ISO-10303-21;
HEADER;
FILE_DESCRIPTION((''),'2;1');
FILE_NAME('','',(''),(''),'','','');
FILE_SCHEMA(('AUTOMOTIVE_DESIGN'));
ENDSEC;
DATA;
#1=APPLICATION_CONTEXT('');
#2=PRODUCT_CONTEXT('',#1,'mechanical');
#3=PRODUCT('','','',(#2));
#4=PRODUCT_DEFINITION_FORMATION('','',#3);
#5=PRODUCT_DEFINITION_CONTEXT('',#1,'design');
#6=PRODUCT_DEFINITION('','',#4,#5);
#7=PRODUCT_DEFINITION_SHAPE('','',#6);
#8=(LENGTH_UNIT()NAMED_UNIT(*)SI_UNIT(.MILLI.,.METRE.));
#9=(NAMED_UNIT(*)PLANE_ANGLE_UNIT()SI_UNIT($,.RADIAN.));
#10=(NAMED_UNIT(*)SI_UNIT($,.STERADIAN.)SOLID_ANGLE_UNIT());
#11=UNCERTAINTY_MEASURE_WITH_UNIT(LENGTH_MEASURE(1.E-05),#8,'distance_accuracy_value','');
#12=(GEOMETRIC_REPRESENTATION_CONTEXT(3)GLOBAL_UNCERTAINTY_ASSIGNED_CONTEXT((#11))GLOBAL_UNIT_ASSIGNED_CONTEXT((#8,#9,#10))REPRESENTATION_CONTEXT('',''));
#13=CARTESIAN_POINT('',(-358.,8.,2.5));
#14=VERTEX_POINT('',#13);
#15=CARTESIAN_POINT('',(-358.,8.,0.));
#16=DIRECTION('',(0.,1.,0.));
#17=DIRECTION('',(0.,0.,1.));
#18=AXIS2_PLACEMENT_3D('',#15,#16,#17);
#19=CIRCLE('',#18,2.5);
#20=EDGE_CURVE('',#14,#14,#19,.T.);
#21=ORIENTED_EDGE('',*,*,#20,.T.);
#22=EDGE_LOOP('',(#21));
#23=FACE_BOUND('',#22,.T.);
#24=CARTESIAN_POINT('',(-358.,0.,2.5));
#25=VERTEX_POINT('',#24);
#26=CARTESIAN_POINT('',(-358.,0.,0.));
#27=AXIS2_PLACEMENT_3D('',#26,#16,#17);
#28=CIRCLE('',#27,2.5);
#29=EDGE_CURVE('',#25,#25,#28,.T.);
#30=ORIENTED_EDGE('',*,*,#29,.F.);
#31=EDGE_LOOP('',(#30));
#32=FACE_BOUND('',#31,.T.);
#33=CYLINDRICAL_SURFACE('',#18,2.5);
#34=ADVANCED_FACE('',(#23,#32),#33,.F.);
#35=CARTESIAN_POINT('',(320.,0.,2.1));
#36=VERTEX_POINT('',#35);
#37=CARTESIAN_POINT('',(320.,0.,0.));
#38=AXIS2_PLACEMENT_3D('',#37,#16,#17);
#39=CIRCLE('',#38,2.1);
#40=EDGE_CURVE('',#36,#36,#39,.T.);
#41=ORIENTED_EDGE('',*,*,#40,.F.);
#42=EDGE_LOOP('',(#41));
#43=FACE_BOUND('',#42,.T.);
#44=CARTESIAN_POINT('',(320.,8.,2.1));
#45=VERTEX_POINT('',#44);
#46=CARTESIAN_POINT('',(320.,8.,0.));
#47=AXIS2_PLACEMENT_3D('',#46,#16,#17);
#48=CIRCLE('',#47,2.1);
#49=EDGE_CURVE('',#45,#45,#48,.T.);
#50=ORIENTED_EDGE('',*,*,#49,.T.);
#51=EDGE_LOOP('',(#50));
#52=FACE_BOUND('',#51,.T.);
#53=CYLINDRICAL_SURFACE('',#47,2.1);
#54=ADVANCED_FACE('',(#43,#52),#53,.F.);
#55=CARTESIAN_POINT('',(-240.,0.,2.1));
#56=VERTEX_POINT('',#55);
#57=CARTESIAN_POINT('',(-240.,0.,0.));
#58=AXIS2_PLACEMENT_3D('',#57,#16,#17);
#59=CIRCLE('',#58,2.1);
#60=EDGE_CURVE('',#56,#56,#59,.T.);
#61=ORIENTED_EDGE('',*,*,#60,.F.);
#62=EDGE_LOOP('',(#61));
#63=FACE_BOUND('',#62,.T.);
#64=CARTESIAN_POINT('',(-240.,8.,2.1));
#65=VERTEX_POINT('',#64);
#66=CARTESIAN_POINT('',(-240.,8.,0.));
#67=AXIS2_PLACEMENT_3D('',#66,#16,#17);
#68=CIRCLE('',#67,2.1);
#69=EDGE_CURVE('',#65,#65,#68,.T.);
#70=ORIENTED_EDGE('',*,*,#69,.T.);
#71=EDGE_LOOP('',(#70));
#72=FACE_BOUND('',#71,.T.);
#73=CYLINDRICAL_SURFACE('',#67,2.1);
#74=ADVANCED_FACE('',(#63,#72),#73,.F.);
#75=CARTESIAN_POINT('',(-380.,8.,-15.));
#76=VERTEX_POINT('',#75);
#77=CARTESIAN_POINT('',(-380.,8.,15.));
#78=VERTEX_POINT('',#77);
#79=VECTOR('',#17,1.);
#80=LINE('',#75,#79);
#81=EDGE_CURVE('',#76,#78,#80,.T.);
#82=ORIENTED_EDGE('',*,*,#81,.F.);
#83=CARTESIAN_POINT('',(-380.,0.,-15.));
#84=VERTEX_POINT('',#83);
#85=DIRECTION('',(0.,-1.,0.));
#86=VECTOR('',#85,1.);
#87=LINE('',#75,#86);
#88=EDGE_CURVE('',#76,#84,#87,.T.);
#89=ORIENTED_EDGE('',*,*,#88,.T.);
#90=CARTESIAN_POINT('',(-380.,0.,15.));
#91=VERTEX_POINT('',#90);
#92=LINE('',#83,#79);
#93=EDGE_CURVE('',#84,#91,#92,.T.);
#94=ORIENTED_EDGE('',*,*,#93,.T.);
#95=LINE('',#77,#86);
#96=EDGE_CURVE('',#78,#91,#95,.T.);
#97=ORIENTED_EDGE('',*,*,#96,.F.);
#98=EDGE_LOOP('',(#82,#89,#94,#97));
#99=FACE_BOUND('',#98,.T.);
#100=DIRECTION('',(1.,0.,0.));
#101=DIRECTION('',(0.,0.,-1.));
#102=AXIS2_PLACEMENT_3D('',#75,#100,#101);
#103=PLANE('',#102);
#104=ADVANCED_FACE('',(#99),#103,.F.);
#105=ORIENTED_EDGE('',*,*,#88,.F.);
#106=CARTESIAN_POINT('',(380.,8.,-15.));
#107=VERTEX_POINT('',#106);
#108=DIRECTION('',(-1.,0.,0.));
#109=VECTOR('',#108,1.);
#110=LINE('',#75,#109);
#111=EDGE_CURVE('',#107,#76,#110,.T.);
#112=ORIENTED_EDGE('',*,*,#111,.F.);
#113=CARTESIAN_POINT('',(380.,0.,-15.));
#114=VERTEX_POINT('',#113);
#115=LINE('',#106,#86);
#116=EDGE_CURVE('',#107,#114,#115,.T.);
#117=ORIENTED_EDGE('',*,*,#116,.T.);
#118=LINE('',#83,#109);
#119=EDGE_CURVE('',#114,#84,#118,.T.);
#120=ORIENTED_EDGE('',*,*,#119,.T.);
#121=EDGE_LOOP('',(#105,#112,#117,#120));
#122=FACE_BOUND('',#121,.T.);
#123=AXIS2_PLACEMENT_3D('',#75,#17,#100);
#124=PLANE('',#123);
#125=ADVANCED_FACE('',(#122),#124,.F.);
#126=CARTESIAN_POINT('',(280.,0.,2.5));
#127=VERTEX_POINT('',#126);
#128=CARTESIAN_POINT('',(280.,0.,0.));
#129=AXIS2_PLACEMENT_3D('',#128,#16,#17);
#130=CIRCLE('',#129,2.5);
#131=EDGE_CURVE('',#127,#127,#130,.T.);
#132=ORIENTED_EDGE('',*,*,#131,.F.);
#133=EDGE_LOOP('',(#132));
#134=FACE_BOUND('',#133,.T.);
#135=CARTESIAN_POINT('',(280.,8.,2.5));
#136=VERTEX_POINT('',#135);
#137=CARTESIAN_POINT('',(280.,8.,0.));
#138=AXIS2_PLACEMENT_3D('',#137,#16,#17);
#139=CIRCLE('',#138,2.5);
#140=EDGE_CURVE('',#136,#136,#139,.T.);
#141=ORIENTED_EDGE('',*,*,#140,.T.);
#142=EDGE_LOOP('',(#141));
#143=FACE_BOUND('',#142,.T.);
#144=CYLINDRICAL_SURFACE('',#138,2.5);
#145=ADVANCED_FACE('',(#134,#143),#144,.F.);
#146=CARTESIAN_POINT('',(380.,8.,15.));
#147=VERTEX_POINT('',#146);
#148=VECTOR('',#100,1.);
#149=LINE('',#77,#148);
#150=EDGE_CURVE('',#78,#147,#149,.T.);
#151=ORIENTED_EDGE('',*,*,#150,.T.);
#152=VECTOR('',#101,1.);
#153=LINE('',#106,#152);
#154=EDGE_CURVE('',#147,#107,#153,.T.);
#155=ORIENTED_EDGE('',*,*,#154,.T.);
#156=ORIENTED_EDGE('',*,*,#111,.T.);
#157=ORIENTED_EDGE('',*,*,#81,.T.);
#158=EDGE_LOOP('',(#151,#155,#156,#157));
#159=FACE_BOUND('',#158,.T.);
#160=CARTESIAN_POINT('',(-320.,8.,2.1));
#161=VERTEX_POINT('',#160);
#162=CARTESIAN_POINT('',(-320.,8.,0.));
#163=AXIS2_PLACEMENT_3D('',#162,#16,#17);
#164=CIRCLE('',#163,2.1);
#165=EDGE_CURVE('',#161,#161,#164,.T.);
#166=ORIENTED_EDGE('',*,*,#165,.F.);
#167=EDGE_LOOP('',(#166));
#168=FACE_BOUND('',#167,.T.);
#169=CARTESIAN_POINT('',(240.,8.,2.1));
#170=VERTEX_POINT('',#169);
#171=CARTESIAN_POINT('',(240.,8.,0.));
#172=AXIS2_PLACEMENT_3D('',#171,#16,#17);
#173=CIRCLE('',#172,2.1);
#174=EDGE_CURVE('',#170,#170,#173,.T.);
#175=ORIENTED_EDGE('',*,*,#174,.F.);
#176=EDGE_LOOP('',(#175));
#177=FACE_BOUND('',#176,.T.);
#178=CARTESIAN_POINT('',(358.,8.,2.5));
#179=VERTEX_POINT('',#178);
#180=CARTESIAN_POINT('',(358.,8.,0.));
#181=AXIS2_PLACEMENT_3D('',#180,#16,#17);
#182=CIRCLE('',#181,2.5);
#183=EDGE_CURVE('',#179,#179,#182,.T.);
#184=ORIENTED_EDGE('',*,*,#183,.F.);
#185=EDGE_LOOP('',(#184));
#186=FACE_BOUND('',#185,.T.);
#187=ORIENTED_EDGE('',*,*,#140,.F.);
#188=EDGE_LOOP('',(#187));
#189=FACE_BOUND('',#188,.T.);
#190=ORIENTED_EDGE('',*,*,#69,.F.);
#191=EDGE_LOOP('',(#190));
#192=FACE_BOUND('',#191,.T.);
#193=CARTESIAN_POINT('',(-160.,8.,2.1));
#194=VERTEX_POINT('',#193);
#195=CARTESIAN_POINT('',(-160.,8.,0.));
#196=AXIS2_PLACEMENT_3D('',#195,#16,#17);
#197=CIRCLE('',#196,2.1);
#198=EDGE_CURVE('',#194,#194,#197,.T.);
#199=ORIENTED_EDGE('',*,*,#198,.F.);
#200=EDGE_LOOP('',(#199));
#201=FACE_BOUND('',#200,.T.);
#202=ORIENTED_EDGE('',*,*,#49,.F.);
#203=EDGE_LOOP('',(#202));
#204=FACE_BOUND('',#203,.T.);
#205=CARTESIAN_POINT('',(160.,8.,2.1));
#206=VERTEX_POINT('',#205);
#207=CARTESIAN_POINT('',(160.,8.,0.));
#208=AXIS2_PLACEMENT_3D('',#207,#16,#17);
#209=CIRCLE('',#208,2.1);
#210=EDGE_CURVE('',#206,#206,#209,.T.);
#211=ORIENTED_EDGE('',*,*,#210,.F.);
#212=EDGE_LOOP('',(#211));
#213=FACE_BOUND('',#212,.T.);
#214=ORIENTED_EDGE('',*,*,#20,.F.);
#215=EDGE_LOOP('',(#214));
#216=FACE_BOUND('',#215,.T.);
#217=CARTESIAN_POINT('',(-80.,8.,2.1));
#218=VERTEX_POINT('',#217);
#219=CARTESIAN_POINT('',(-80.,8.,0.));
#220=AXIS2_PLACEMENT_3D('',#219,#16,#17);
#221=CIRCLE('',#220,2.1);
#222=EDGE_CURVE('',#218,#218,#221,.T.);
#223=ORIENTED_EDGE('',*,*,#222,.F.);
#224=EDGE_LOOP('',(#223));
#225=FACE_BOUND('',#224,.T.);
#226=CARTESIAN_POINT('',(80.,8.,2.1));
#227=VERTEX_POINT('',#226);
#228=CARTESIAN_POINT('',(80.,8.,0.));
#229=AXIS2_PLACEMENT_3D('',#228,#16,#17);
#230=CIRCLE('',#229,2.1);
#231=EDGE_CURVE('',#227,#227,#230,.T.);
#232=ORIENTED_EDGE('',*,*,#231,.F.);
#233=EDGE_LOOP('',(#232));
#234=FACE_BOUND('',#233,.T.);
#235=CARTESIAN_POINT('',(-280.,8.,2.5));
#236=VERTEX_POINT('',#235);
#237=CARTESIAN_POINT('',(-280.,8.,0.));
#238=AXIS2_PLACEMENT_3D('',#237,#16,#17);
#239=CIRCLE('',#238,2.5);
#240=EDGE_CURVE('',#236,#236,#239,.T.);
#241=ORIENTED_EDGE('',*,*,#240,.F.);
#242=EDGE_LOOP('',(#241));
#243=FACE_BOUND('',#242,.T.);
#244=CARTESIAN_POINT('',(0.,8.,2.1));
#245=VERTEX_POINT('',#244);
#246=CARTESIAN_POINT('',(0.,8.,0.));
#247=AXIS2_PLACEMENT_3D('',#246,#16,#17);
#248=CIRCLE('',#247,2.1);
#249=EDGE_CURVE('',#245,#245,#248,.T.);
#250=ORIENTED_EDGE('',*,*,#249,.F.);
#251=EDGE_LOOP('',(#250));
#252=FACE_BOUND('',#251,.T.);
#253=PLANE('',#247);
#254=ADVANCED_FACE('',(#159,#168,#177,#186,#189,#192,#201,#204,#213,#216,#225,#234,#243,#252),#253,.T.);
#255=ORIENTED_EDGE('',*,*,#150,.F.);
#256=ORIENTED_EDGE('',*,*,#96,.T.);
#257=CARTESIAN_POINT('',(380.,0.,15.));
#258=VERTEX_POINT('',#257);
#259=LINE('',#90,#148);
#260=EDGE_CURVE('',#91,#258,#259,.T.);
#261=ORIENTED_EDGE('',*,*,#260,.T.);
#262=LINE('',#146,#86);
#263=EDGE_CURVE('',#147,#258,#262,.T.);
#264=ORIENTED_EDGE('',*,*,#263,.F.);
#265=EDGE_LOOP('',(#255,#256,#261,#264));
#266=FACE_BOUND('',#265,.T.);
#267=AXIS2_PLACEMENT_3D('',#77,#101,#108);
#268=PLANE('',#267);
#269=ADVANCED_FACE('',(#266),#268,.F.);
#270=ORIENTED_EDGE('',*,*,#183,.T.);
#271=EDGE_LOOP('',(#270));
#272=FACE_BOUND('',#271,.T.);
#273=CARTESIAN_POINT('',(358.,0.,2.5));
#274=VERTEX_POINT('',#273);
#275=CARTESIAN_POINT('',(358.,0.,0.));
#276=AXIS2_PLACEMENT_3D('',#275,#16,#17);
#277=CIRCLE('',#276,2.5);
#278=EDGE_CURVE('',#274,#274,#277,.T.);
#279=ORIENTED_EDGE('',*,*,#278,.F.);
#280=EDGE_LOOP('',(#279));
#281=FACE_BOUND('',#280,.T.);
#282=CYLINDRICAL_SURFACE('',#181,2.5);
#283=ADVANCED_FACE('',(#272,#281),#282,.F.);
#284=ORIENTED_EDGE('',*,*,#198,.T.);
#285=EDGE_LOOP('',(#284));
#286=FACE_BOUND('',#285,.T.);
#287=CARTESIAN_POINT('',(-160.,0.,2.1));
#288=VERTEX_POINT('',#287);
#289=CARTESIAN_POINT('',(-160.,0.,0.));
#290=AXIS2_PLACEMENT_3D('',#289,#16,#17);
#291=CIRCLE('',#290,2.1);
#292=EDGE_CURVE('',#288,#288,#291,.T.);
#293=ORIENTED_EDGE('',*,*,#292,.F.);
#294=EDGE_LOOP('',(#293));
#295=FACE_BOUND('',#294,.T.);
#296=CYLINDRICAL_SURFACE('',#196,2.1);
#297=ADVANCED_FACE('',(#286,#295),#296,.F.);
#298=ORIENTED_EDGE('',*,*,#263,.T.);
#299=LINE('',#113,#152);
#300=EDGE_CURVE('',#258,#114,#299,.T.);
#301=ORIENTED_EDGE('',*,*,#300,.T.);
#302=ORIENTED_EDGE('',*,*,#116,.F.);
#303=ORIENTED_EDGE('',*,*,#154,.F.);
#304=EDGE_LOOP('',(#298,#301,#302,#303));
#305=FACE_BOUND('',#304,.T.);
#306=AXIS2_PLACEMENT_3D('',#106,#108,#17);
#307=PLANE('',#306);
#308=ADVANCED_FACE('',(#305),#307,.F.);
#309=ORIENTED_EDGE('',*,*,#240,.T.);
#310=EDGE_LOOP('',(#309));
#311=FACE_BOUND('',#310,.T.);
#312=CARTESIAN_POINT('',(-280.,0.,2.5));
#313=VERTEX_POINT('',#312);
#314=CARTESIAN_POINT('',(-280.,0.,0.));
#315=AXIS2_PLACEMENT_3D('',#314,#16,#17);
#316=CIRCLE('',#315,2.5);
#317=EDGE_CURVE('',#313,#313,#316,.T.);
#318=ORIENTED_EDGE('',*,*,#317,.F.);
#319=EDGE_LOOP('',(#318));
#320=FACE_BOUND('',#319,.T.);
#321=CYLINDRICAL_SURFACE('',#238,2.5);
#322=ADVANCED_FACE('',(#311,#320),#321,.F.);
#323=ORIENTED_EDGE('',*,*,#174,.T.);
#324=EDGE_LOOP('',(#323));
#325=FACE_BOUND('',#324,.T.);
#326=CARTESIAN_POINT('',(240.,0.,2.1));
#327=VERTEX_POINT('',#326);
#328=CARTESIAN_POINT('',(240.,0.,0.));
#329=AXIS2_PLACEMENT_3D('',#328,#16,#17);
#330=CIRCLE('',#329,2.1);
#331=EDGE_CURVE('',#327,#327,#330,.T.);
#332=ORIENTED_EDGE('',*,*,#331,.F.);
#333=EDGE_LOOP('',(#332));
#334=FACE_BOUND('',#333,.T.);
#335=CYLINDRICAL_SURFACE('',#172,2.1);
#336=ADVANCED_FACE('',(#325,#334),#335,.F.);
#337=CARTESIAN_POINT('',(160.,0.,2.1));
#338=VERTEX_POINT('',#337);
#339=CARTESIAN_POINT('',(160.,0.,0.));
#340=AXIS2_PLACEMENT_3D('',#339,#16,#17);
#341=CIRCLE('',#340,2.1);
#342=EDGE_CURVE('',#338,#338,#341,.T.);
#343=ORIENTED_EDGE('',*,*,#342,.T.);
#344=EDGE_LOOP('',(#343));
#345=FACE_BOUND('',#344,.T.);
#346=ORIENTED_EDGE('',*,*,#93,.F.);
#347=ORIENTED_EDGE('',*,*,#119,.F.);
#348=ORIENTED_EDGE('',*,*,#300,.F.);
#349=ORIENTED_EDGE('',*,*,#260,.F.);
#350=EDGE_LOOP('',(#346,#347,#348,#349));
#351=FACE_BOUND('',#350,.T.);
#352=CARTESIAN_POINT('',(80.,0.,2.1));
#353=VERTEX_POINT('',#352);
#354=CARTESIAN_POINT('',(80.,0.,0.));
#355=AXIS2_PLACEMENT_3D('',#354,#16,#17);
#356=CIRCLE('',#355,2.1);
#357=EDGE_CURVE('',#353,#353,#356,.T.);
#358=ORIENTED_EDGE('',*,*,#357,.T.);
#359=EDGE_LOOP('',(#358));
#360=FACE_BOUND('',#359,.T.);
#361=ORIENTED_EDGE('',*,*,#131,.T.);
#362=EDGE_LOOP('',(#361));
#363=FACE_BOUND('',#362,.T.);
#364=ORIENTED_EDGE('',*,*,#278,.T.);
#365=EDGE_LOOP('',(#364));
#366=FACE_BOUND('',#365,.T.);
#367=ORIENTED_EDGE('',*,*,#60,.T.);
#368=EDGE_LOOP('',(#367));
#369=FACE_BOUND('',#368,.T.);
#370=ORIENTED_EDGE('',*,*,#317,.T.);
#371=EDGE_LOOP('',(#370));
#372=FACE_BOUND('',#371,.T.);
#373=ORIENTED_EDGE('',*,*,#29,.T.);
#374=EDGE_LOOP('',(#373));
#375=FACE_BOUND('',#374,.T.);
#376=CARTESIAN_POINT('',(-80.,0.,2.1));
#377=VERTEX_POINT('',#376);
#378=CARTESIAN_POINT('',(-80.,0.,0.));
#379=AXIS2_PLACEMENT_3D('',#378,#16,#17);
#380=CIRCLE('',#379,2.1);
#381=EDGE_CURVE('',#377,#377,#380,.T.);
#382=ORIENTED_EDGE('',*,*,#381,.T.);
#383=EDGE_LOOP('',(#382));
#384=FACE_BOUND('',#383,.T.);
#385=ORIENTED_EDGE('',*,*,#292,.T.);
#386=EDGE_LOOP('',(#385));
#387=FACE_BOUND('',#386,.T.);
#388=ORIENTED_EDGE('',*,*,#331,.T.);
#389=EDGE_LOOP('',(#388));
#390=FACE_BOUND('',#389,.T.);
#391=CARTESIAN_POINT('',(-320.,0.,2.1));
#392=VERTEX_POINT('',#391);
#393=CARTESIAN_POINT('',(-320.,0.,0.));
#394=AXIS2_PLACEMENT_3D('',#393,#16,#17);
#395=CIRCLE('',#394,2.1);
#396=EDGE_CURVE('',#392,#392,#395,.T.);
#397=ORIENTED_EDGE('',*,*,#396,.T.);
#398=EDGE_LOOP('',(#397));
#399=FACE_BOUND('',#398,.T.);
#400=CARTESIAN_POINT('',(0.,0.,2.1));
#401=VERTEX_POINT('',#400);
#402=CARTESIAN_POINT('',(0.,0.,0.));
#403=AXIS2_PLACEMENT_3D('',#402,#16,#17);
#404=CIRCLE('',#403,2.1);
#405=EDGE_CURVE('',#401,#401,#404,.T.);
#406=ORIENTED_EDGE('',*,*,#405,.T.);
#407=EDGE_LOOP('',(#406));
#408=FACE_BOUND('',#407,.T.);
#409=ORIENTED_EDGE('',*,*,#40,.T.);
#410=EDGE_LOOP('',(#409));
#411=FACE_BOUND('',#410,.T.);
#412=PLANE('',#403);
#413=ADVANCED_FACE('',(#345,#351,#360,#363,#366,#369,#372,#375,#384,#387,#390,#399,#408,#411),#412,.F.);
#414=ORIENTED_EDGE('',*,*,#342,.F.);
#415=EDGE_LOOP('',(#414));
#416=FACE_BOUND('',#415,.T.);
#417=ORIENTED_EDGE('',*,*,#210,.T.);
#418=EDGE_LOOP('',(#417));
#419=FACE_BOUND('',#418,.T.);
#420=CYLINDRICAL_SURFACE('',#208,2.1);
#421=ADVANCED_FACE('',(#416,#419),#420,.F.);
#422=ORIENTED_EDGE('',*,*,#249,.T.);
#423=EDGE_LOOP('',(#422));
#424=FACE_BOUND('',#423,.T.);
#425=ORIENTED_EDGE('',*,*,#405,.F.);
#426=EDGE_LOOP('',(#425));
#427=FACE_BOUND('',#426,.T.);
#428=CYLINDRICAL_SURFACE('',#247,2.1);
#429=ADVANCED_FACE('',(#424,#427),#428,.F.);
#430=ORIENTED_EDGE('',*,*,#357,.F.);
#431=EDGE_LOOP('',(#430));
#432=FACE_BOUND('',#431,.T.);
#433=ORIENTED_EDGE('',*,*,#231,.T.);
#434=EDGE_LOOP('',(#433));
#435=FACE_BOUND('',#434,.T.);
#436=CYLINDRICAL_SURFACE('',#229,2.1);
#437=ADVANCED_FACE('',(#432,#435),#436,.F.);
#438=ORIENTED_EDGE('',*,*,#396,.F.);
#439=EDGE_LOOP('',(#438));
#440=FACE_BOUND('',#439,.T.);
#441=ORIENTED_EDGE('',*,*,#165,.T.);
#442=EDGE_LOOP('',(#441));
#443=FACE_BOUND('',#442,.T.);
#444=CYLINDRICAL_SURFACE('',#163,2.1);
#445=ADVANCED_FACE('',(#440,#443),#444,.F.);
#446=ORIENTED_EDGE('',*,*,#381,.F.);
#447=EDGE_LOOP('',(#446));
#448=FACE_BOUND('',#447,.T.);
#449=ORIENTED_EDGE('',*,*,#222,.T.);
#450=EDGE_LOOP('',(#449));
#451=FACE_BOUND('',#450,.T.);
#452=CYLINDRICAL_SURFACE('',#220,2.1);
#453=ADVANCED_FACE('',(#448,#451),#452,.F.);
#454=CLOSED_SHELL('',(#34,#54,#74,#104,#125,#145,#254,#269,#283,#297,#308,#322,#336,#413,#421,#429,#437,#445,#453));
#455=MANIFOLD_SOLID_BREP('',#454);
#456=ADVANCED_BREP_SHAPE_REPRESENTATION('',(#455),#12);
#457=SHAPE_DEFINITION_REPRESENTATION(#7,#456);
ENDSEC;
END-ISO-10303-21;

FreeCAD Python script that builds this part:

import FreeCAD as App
import Part
import Sketcher

doc = App.newDocument("Part")
body = doc.addObject("PartDesign::Body", "Body")

sketch1 = body.newObject("Sketcher::SketchObject", "Sketch")
sketch1.AttachmentSupport = (doc.getObject("XZ_Plane"), [""])
sketch1.MapMode = "FlatFace"
sketch1.addGeometry([
    Part.LineSegment(App.Vector(-380, -15, 0), App.Vector(-380, 15, 0)),
    Part.LineSegment(App.Vector(-380, 15, 0), App.Vector(380, 15, 0)),
    Part.LineSegment(App.Vector(380, 15, 0), App.Vector(380, -15, 0)),
    Part.LineSegment(App.Vector(380, -15, 0), App.Vector(-380, -15, 0)),
], False)
sketch1.addConstraint([
    Sketcher.Constraint("Coincident", 0, 2, 1, 1),
    Sketcher.Constraint("Coincident", 1, 2, 2, 1),
    Sketcher.Constraint("Coincident", 2, 2, 3, 1),
    Sketcher.Constraint("Coincident", 3, 2, 0, 1),
    Sketcher.Constraint("Vertical", 0),
    Sketcher.Constraint("Horizontal", 1),
    Sketcher.Constraint("Vertical", 2),
    Sketcher.Constraint("Horizontal", 3),
    Sketcher.Constraint("Symmetric", 0, 2, 2, 2, -1, 1),
    Sketcher.Constraint("DistanceX", 1, 1, 1, 2, 760.0),
    Sketcher.Constraint("DistanceY", 0, 1, 0, 2, 30.0),
])
pad1 = body.newObject("PartDesign::Pad", "Pad")
pad1.Profile = sketch1
pad1.Length = 8
pad1.Reversed = True

sketch2 = body.newObject("Sketcher::SketchObject", "Sketch001")
sketch2.AttachmentSupport = (doc.getObject("XZ_Plane"), [""])
sketch2.MapMode = "FlatFace"
sketch2.AttachmentOffset = App.Placement(App.Vector(0, 0, -8), App.Rotation())
sketch2.addGeometry([
    Part.Circle(App.Vector(-358, 0, 0), App.Vector(0, 0, 1), 2.5),
    Part.Circle(App.Vector(-280, 0, 0), App.Vector(0, 0, 1), 2.5),
    Part.Circle(App.Vector(280, 0, 0), App.Vector(0, 0, 1), 2.5),
    Part.Circle(App.Vector(358, 0, 0), App.Vector(0, 0, 1), 2.5),
], False)
sketch2.addConstraint([
    Sketcher.Constraint("Equal", 0, 1),
    Sketcher.Constraint("Equal", 1, 2),
    Sketcher.Constraint("Equal", 2, 3),
    Sketcher.Constraint("Symmetric", 1, 3, 2, 3, -1, 1),
    Sketcher.Constraint("Symmetric", 0, 3, 3, 3, -1, 1),
    Sketcher.Constraint("PointOnObject", 0, 3, -1),
    Sketcher.Constraint("PointOnObject", 1, 3, -1),
    Sketcher.Constraint("Diameter", 0, 5.0),
    Sketcher.Constraint("DistanceX", 0, 3, -1, 1, 358.0),
    Sketcher.Constraint("DistanceX", 1, 3, -1, 1, 280.0),
])
doc.recompute()
hole = body.newObject("PartDesign::Hole", "Hole")
hole.Profile = sketch2
hole.ThreadType = "None"
hole.Diameter = 5
hole.DepthType = "ThroughAll"
hole.Reversed = True

sketch3 = body.newObject("Sketcher::SketchObject", "Sketch002")
sketch3.AttachmentSupport = (doc.getObject("XZ_Plane"), [""])
sketch3.MapMode = "FlatFace"
sketch3.AttachmentOffset = App.Placement(App.Vector(0, 0, -8), App.Rotation())
sketch3.addGeometry([
    Part.Circle(App.Vector(0, 0, 0), App.Vector(0, 0, 1), 2.1),
    Part.Circle(App.Vector(80, 0, 0), App.Vector(0, 0, 1), 2.1),
    Part.Circle(App.Vector(160, 0, 0), App.Vector(0, 0, 1), 2.1),
    Part.Circle(App.Vector(240, 0, 0), App.Vector(0, 0, 1), 2.1),
    Part.Circle(App.Vector(320, 0, 0), App.Vector(0, 0, 1), 2.1),
    Part.Circle(App.Vector(-80, 0, 0), App.Vector(0, 0, 1), 2.1),
    Part.Circle(App.Vector(-160, 0, 0), App.Vector(0, 0, 1), 2.1),
    Part.Circle(App.Vector(-240, 0, 0), App.Vector(0, 0, 1), 2.1),
    Part.Circle(App.Vector(-320, 0, 0), App.Vector(0, 0, 1), 2.1),
], False)
sketch3.addConstraint([
    Sketcher.Constraint("Coincident", 0, 3, -1, 1),
    Sketcher.Constraint("Equal", 0, 1),
    Sketcher.Constraint("Equal", 1, 2),
    Sketcher.Constraint("Equal", 2, 3),
    Sketcher.Constraint("Equal", 3, 4),
    Sketcher.Constraint("Equal", 4, 5),
    Sketcher.Constraint("Equal", 5, 6),
    Sketcher.Constraint("Equal", 6, 7),
    Sketcher.Constraint("Equal", 7, 8),
    Sketcher.Constraint("Symmetric", 1, 3, 5, 3, -1, 1),
    Sketcher.Constraint("Symmetric", 2, 3, 6, 3, -1, 1),
    Sketcher.Constraint("Symmetric", 3, 3, 7, 3, -1, 1),
    Sketcher.Constraint("Symmetric", 4, 3, 8, 3, -1, 1),
    Sketcher.Constraint("PointOnObject", 1, 3, -1),
    Sketcher.Constraint("PointOnObject", 2, 3, -1),
    Sketcher.Constraint("PointOnObject", 3, 3, -1),
    Sketcher.Constraint("PointOnObject", 4, 3, -1),
    Sketcher.Constraint("Diameter", 0, 4.2),
    Sketcher.Constraint("DistanceX", -1, 1, 1, 3, 80.0),
    Sketcher.Constraint("DistanceX", -1, 1, 2, 3, 160.0),
    Sketcher.Constraint("DistanceX", -1, 1, 3, 3, 240.0),
    Sketcher.Constraint("DistanceX", -1, 1, 4, 3, 320.0),
])
doc.recompute()
hole2 = body.newObject("PartDesign::Hole", "Hole001")
hole2.Profile = sketch3
hole2.ThreadType = "None"
hole2.Diameter = 4.2
hole2.DepthType = "ThroughAll"
hole2.Reversed = True

doc.recompute()
